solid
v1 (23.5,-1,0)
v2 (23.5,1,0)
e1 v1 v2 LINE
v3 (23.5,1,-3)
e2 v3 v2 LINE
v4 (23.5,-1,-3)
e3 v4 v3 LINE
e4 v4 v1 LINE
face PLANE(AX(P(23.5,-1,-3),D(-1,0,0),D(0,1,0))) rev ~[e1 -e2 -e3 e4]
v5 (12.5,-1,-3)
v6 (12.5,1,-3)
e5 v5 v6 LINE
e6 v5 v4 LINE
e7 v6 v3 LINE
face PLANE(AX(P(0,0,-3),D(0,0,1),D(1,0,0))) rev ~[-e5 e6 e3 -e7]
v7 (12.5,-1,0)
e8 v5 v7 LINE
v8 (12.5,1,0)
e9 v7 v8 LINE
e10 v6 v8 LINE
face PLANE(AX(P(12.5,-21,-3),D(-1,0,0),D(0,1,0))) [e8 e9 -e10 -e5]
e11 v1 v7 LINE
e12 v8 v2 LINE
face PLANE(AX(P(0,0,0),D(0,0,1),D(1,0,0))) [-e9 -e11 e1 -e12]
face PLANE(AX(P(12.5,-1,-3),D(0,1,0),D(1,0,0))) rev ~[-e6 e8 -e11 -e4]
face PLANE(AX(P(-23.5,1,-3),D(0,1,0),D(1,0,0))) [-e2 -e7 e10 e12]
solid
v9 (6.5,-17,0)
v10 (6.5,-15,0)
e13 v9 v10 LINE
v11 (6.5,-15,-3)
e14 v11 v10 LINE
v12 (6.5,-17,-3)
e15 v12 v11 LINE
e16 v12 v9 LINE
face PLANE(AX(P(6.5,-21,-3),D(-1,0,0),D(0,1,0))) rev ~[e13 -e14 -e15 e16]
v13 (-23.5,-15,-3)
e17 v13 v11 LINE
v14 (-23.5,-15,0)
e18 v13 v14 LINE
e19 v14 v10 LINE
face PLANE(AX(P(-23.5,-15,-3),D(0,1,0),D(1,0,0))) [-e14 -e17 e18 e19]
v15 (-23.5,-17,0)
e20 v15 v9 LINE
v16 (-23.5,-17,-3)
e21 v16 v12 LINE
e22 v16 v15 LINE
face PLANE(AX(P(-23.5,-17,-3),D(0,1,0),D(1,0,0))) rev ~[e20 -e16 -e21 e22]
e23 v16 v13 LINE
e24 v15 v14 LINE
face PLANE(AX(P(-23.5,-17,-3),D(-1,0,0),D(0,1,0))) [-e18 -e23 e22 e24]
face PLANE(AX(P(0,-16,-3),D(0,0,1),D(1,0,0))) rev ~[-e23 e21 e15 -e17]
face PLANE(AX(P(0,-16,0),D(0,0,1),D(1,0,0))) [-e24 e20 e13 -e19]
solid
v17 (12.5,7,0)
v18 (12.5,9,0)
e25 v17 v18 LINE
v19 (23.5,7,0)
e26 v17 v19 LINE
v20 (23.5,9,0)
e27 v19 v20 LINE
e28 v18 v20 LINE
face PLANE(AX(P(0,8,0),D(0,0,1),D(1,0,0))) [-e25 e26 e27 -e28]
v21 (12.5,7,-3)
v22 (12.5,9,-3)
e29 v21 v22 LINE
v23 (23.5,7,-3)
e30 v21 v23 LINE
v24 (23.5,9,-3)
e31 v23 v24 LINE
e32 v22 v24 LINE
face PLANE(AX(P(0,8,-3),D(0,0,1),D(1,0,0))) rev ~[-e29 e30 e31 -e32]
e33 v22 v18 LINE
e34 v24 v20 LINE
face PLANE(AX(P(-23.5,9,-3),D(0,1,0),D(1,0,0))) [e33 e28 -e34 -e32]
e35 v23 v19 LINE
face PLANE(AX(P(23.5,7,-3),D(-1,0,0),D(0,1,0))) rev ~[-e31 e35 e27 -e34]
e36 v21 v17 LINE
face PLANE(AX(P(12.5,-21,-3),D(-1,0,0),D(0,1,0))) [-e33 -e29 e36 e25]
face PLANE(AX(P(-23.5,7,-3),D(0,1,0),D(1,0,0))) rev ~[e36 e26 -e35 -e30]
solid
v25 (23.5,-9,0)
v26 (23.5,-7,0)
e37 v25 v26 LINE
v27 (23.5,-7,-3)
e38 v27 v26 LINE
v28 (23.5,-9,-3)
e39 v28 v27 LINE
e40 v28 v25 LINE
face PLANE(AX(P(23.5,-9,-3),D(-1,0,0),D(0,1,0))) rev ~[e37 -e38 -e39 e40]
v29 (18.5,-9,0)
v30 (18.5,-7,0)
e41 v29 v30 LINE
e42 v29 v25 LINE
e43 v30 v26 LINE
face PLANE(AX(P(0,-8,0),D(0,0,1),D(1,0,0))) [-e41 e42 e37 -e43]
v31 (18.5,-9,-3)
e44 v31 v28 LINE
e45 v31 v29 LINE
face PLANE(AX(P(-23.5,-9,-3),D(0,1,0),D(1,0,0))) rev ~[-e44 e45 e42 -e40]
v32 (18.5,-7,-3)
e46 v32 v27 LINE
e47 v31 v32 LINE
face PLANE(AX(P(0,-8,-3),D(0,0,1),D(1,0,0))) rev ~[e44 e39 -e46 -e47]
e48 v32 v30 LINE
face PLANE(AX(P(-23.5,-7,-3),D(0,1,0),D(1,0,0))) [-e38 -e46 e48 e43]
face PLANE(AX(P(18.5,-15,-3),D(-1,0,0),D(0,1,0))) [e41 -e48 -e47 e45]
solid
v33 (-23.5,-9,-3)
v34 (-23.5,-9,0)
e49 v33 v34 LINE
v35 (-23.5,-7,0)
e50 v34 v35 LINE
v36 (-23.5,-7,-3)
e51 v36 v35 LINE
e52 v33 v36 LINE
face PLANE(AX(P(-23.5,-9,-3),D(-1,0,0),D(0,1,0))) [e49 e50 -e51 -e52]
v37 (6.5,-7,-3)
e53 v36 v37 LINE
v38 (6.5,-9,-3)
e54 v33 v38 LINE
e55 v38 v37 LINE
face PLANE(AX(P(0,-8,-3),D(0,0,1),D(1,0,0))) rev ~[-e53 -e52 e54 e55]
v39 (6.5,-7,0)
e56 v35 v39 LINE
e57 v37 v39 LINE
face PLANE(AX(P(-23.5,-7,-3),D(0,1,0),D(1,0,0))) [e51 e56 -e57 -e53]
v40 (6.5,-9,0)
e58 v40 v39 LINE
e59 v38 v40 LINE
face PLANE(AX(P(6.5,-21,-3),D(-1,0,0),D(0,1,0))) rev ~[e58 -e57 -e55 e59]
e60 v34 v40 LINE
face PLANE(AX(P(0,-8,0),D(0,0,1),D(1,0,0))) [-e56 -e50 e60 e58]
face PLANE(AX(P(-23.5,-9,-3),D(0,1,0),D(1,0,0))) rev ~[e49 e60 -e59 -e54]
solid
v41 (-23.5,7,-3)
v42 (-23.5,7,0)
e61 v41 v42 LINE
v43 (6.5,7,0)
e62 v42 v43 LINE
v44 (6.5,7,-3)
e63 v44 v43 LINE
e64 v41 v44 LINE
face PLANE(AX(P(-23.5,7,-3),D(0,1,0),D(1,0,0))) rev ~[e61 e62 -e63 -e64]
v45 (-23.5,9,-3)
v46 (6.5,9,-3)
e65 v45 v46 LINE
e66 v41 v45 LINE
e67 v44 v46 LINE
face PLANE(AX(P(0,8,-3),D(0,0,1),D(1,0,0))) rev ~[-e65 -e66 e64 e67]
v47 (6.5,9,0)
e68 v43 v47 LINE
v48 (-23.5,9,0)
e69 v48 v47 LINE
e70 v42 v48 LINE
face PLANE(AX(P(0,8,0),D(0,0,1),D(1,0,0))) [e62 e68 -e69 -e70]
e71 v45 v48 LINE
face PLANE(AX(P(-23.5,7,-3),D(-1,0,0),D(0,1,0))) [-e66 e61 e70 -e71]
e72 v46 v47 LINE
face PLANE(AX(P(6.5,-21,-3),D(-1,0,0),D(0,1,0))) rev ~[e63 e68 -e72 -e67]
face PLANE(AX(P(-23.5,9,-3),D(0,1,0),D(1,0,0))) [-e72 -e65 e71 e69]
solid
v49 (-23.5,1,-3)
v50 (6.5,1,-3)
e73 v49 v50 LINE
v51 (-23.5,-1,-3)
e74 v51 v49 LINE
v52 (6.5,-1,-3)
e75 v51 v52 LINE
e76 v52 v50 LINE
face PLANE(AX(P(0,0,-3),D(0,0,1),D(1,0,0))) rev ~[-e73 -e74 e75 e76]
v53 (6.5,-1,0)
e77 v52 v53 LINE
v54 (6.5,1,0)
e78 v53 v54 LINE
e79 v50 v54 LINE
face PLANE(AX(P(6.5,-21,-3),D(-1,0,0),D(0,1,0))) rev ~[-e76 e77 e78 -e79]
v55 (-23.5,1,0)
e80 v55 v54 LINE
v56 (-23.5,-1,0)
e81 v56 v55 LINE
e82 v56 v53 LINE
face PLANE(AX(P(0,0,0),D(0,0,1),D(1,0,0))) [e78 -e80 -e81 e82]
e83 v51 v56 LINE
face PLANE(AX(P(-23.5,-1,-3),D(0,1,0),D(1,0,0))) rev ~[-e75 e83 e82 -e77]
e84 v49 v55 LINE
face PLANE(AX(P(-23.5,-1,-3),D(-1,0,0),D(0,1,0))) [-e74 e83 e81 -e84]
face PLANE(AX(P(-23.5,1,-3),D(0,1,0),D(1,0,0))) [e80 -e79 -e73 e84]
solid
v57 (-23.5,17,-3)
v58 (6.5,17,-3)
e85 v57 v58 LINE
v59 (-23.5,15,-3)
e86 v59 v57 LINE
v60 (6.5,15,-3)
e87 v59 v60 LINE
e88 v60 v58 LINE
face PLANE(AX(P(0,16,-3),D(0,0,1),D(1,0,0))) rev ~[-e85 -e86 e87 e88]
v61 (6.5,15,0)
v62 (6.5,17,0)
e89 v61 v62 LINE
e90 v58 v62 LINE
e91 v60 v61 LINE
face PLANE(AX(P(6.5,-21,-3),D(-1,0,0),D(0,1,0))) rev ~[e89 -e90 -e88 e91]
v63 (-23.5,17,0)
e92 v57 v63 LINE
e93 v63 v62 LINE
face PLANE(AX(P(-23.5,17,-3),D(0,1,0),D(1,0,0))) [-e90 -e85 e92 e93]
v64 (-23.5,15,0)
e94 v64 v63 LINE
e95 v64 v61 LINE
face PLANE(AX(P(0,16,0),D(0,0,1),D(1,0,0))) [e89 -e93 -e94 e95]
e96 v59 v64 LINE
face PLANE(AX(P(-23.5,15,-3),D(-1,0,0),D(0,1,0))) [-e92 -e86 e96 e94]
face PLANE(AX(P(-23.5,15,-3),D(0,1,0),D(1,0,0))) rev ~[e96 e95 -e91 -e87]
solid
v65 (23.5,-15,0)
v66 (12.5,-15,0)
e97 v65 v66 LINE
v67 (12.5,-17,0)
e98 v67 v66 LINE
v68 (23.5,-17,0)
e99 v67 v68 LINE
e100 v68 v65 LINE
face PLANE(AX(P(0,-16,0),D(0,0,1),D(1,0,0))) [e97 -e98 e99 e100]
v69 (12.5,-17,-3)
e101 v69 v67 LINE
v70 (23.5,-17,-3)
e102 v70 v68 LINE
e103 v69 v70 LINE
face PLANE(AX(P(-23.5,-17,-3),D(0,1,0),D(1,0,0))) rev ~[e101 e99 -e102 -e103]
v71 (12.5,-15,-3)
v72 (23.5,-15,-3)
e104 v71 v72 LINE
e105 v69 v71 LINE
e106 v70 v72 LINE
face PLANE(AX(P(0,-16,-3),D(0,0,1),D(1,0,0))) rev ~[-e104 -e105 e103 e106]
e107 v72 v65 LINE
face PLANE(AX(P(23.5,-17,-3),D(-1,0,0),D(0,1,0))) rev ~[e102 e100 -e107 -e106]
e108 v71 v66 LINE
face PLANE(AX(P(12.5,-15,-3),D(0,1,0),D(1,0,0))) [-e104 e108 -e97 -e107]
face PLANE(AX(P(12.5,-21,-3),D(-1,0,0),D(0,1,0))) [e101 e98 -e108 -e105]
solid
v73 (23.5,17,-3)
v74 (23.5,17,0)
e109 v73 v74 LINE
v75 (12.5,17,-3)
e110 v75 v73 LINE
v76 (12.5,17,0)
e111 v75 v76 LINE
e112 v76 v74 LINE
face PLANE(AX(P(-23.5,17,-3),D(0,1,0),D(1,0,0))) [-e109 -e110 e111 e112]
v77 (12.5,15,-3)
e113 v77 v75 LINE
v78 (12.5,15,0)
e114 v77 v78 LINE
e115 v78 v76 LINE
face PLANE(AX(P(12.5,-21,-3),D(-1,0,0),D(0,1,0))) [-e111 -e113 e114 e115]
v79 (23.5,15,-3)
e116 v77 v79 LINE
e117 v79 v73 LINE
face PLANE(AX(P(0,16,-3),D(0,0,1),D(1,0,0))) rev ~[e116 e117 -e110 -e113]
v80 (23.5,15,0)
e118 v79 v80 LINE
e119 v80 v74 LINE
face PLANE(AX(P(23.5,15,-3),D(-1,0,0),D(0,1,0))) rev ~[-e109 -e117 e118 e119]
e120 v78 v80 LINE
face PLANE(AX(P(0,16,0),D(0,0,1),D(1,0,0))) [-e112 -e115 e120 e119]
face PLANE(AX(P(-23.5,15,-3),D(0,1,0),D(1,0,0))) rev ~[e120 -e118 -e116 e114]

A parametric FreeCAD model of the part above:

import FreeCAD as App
import Part
import Sketcher
Q = App.Units.Quantity

doc = App.newDocument("Part")
params = doc.addObject("Spreadsheet::Sheet", "Params")
for row, (alias, value) in enumerate([
    ("sketch1_width", "6 mm"),
    ("sketch1_height", "14 mm"),
    ("pad1_length", "3 mm"),
    ("sketch2_width", "6 mm"),
    ("sketch2_height", "42 mm"),
    ("pad2_length", "3 mm"),
    ("sketch3_width", "47 mm"),
    ("sketch3_height", "2 mm"),
    ("pad3_length", "3 mm"),
    ("sketch4_width", "47 mm"),
    ("sketch4_height", "2 mm"),
    ("pad4_length", "3 mm"),
    ("sketch5_width", "47 mm"),
    ("sketch5_height", "2 mm"),
    ("pad5_length", "3 mm"),
    ("sketch6_width", "47 mm"),
    ("sketch6_height", "2 mm"),
    ("pad6_length", "3 mm"),
    ("sketch7_width", "47 mm"),
    ("sketch7_height", "2 mm"),
    ("pad7_length", "3 mm"),
], start=1):
    params.set(f"A{row}", alias)
    params.set(f"B{row}", "=" + value)
    params.setAlias(f"B{row}", alias)

body = doc.addObject("PartDesign::Body", "Body")

# Sketch on XY plane
sketch1 = body.newObject("Sketcher::SketchObject", "Sketch")
sketch1.AttachmentSupport = (doc.getObject("XY_Plane"), [""])
sketch1.MapMode = "FlatFace"
sketch1.AttachmentOffset = App.Placement(App.Vector(0, 0, -3), App.Rotation())
sketch1.addGeometry([
    Part.LineSegment(App.Vector(12, -1, 0), App.Vector(12, -15, 0)),
    Part.LineSegment(App.Vector(12, -15, 0), App.Vector(18, -15, 0)),
    Part.LineSegment(App.Vector(18, -15, 0), App.Vector(18, -1, 0)),
    Part.LineSegment(App.Vector(18, -1, 0), App.Vector(12, -1, 0)),
], False)
sketch1.addConstraint([
    Sketcher.Constraint("Coincident", 0, 2, 1, 1),
    Sketcher.Constraint("Coincident", 1, 2, 2, 1),
    Sketcher.Constraint("Coincident", 2, 2, 3, 1),
    Sketcher.Constraint("Coincident", 3, 2, 0, 1),
    Sketcher.Constraint("Vertical", 0),
    Sketcher.Constraint("Horizontal", 1),
    Sketcher.Constraint("Vertical", 2),
    Sketcher.Constraint("Horizontal", 3),
    Sketcher.Constraint("DistanceX", 1, 1, 1, 2, Q("6 mm")),
    Sketcher.Constraint("DistanceY", 0, 2, 0, 1, Q("14 mm")),
    Sketcher.Constraint("DistanceY", 0, 2, -1, 1, Q("15 mm")),
    Sketcher.Constraint("DistanceX", -1, 1, 0, 2, Q("12.5 mm")),
])
sketch1.setExpression("Constraints[8]", "Params.sketch1_width")
sketch1.setExpression("Constraints[9]", "Params.sketch1_height")
pad1 = body.newObject("PartDesign::Pad", "Pad")
pad1.Profile = sketch1
pad1.setExpression("Length", "Params.pad1_length")
body2 = doc.addObject("PartDesign::Body", "Body001")

# Sketch on XY plane
sketch2 = body2.newObject("Sketcher::SketchObject", "Sketch001")
sketch2.AttachmentSupport = (doc.getObject("XY_Plane001"), [""])
sketch2.MapMode = "FlatFace"
sketch2.AttachmentOffset = App.Placement(App.Vector(0, 0, -3), App.Rotation())
sketch2.addGeometry([
    Part.LineSegment(App.Vector(6, 21, 0), App.Vector(6, -21, 0)),
    Part.LineSegment(App.Vector(6, -21, 0), App.Vector(12, -21, 0)),
    Part.LineSegment(App.Vector(12, -21, 0), App.Vector(12, 21, 0)),
    Part.LineSegment(App.Vector(12, 21, 0), App.Vector(6, 21, 0)),
], False)
sketch2.addConstraint([
    Sketcher.Constraint("Coincident", 0, 2, 1, 1),
    Sketcher.Constraint("Coincident", 1, 2, 2, 1),
    Sketcher.Constraint("Coincident", 2, 2, 3, 1),
    Sketcher.Constraint("Coincident", 3, 2, 0, 1),
    Sketcher.Constraint("Vertical", 0),
    Sketcher.Constraint("Horizontal", 1),
    Sketcher.Constraint("Vertical", 2),
    Sketcher.Constraint("Horizontal", 3),
    Sketcher.Constraint("DistanceX", 1, 1, 1, 2, Q("6 mm")),
    Sketcher.Constraint("DistanceY", 0, 2, 0, 1, Q("42 mm")),
    Sketcher.Constraint("DistanceY", 0, 2, -1, 1, Q("21 mm")),
    Sketcher.Constraint("DistanceX", -1, 1, 0, 2, Q("6.5 mm")),
])
sketch2.setExpression("Constraints[8]", "Params.sketch2_width")
sketch2.setExpression("Constraints[9]", "Params.sketch2_height")
pad2 = body2.newObject("PartDesign::Pad", "Pad001")
pad2.Profile = sketch2
pad2.setExpression("Length", "Params.pad2_length")
doc.recompute()

boolean = body2.newObject("PartDesign::Boolean", "Boolean")
boolean.Type = "Fuse"
boolean.addObjects([body])
body3 = doc.addObject("PartDesign::Body", "Body002")

# Sketch on XY plane
sketch3 = body3.newObject("Sketcher::SketchObject", "Sketch002")
sketch3.AttachmentSupport = (doc.getObject("XY_Plane002"), [""])
sketch3.MapMode = "FlatFace"
sketch3.AttachmentOffset = App.Placement(App.Vector(0, 0, -3), App.Rotation())
sketch3.addGeometry([
    Part.LineSegment(App.Vector(-23.5, 1, 0), App.Vector(-23.5, -1, 0)),
    Part.LineSegment(App.Vector(-23.5, -1, 0), App.Vector(23.5, -1, 0)),
    Part.LineSegment(App.Vector(23.5, -1, 0), App.Vector(23.5, 1, 0)),
    Part.LineSegment(App.Vector(23.5, 1, 0), App.Vector(-23.5, 1, 0)),
], False)
sketch3.addConstraint([
    Sketcher.Constraint("Coincident", 0, 2, 1, 1),
    Sketcher.Constraint("Coincident", 1, 2, 2, 1),
    Sketcher.Constraint("Coincident", 2, 2, 3, 1),
    Sketcher.Constraint("Coincident", 3, 2, 0, 1),
    Sketcher.Constraint("Vertical", 0),
    Sketcher.Constraint("Horizontal", 1),
    Sketcher.Constraint("Vertical", 2),
    Sketcher.Constraint("Horizontal", 3),
    Sketcher.Constraint("Symmetric", 0, 2, 2, 2, -1, 1),
    Sketcher.Constraint("DistanceX", 1, 1, 1, 2, Q("47 mm")),
    Sketcher.Constraint("DistanceY", 0, 2, 0, 1, Q("2 mm")),
])
sketch3.setExpression("Constraints[9]", "Params.sketch3_width")
sketch3.setExpression("Constraints[10]", "Params.sketch3_height")
pad3 = body3.newObject("PartDesign::Pad", "Pad002")
pad3.Profile = sketch3
pad3.setExpression("Length", "Params.pad3_length")
body4 = doc.addObject("PartDesign::Body", "Body003")

# Sketch on XY plane
sketch4 = body4.newObject("Sketcher::SketchObject", "Sketch003")
sketch4.AttachmentSupport = (doc.getObject("XY_Plane003"), [""])
sketch4.MapMode = "FlatFace"
sketch4.AttachmentOffset = App.Placement(App.Vector(0, 0, -3), App.Rotation())
sketch4.addGeometry([
    Part.LineSegment(App.Vector(-23.5, -7, 0), App.Vector(-23.5, -9, 0)),
    Part.LineSegment(App.Vector(-23.5, -9, 0), App.Vector(23.5, -9, 0)),
    Part.LineSegment(App.Vector(23.5, -9, 0), App.Vector(23.5, -7, 0)),
    Part.LineSegment(App.Vector(23.5, -7, 0), App.Vector(-23.5, -7, 0)),
], False)
sketch4.addConstraint([
    Sketcher.Constraint("Coincident", 0, 2, 1, 1),
    Sketcher.Constraint("Coincident", 1, 2, 2, 1),
    Sketcher.Constraint("Coincident", 2, 2, 3, 1),
    Sketcher.Constraint("Coincident", 3, 2, 0, 1),
    Sketcher.Constraint("Vertical", 0),
    Sketcher.Constraint("Horizontal", 1),
    Sketcher.Constraint("Vertical", 2),
    Sketcher.Constraint("Horizontal", 3),
    Sketcher.Constraint("DistanceX", 1, 1, 1, 2, Q("47 mm")),
    Sketcher.Constraint("DistanceY", 0, 2, 0, 1, Q("2 mm")),
    Sketcher.Constraint("DistanceY", 0, 2, -1, 1, Q("9 mm")),
    Sketcher.Constraint("DistanceX", 0, 2, -1, 1, Q("23.5 mm")),
])
sketch4.setExpression("Constraints[8]", "Params.sketch4_width")
sketch4.setExpression("Constraints[9]", "Params.sketch4_height")
pad4 = body4.newObject("PartDesign::Pad", "Pad003")
pad4.Profile = sketch4
pad4.setExpression("Length", "Params.pad4_length")
body5 = doc.addObject("PartDesign::Body", "Body004")

# Sketch on XY plane
sketch5 = body5.newObject("Sketcher::SketchObject", "Sketch004")
sketch5.AttachmentSupport = (doc.getObject("XY_Plane004"), [""])
sketch5.MapMode = "FlatFace"
sketch5.AttachmentOffset = App.Placement(App.Vector(0, 0, -3), App.Rotation())
sketch5.addGeometry([
    Part.LineSegment(App.Vector(-23.5, -15, 0), App.Vector(-23.5, -17, 0)),
    Part.LineSegment(App.Vector(-23.5, -17, 0), App.Vector(23.5, -17, 0)),
    Part.LineSegment(App.Vector(23.5, -17, 0), App.Vector(23.5, -15, 0)),
    Part.LineSegment(App.Vector(23.5, -15, 0), App.Vector(-23.5, -15, 0)),
], False)
sketch5.addConstraint([
    Sketcher.Constraint("Coincident", 0, 2, 1, 1),
    Sketcher.Constraint("Coincident", 1, 2, 2, 1),
    Sketcher.Constraint("Coincident", 2, 2, 3, 1),
    Sketcher.Constraint("Coincident", 3, 2, 0, 1),
    Sketcher.Constraint("Vertical", 0),
    Sketcher.Constraint("Horizontal", 1),
    Sketcher.Constraint("Vertical", 2),
    Sketcher.Constraint("Horizontal", 3),
    Sketcher.Constraint("DistanceX", 1, 1, 1, 2, Q("47 mm")),
    Sketcher.Constraint("DistanceY", 0, 2, 0, 1, Q("2 mm")),
    Sketcher.Constraint("DistanceY", 0, 2, -1, 1, Q("17 mm")),
    Sketcher.Constraint("DistanceX", 0, 2, -1, 1, Q("23.5 mm")),
])
sketch5.setExpression("Constraints[8]", "Params.sketch5_width")
sketch5.setExpression("Constraints[9]", "Params.sketch5_height")
pad5 = body5.newObject("PartDesign::Pad", "Pad004")
pad5.Profile = sketch5
pad5.setExpression("Length", "Params.pad5_length")
body6 = doc.addObject("PartDesign::Body", "Body005")

# Sketch on XY plane
sketch6 = body6.newObject("Sketcher::SketchObject", "Sketch005")
sketch6.AttachmentSupport = (doc.getObject("XY_Plane005"), [""])
sketch6.MapMode = "FlatFace"
sketch6.AttachmentOffset = App.Placement(App.Vector(0, 0, -3), App.Rotation())
sketch6.addGeometry([
    Part.LineSegment(App.Vector(-23.5, 9, 0), App.Vector(-23.5, 7, 0)),
    Part.LineSegment(App.Vector(-23.5, 7, 0), App.Vector(23.5, 7, 0)),
    Part.LineSegment(App.Vector(23.5, 7, 0), App.Vector(23.5, 9, 0)),
    Part.LineSegment(App.Vector(23.5, 9, 0), App.Vector(-23.5, 9, 0)),
], False)
sketch6.addConstraint([
    Sketcher.Constraint("Coincident", 0, 2, 1, 1),
    Sketcher.Constraint("Coincident", 1, 2, 2, 1),
    Sketcher.Constraint("Coincident", 2, 2, 3, 1),
    Sketcher.Constraint("Coincident", 3, 2, 0, 1),
    Sketcher.Constraint("Vertical", 0),
    Sketcher.Constraint("Horizontal", 1),
    Sketcher.Constraint("Vertical", 2),
    Sketcher.Constraint("Horizontal", 3),
    Sketcher.Constraint("DistanceX", 1, 1, 1, 2, Q("47 mm")),
    Sketcher.Constraint("DistanceY", 0, 2, 0, 1, Q("2 mm")),
    Sketcher.Constraint("DistanceY", -1, 1, 0, 2, Q("7 mm")),
    Sketcher.Constraint("DistanceX", 0, 2, -1, 1, Q("23.5 mm")),
])
sketch6.setExpression("Constraints[8]", "Params.sketch6_width")
sketch6.setExpression("Constraints[9]", "Params.sketch6_height")
pad6 = body6.newObject("PartDesign::Pad", "Pad005")
pad6.Profile = sketch6
pad6.setExpression("Length", "Params.pad6_length")
body7 = doc.addObject("PartDesign::Body", "Body006")
body7.AllowCompound = True

# Sketch on XY plane
sketch7 = body7.newObject("Sketcher::SketchObject", "Sketch006")
sketch7.AttachmentSupport = (doc.getObject("XY_Plane006"), [""])
sketch7.MapMode = "FlatFace"
sketch7.AttachmentOffset = App.Placement(App.Vector(0, 0, -3), App.Rotation())
sketch7.addGeometry([
    Part.LineSegment(App.Vector(-23.5, 17, 0), App.Vector(-23.5, 15, 0)),
    Part.LineSegment(App.Vector(-23.5, 15, 0), App.Vector(23.5, 15, 0)),
    Part.LineSegment(App.Vector(23.5, 15, 0), App.Vector(23.5, 17, 0)),
    Part.LineSegment(App.Vector(23.5, 17, 0), App.Vector(-23.5, 17, 0)),
], False)
sketch7.addConstraint([
    Sketcher.Constraint("Coincident", 0, 2, 1, 1),
    Sketcher.Constraint("Coincident", 1, 2, 2, 1),
    Sketcher.Constraint("Coincident", 2, 2, 3, 1),
    Sketcher.Constraint("Coincident", 3, 2, 0, 1),
    Sketcher.Constraint("Vertical", 0),
    Sketcher.Constraint("Horizontal", 1),
    Sketcher.Constraint("Vertical", 2),
    Sketcher.Constraint("Horizontal", 3),
    Sketcher.Constraint("DistanceX", 1, 1, 1, 2, Q("47 mm")),
    Sketcher.Constraint("DistanceY", 0, 2, 0, 1, Q("2 mm")),
    Sketcher.Constraint("DistanceY", -1, 1, 0, 2, Q("15 mm")),
    Sketcher.Constraint("DistanceX", 0, 2, -1, 1, Q("23.5 mm")),
])
sketch7.setExpression("Constraints[8]", "Params.sketch7_width")
sketch7.setExpression("Constraints[9]", "Params.sketch7_height")
pad7 = body7.newObject("PartDesign::Pad", "Pad006")
pad7.Profile = sketch7
pad7.setExpression("Length", "Params.pad7_length")
doc.recompute()

boolean2 = body7.newObject("PartDesign::Boolean", "Boolean001")
boolean2.Type = "Fuse"
boolean2.addObjects([body3])
doc.recompute()

boolean3 = body7.newObject("PartDesign::Boolean", "Boolean002")
boolean3.Type = "Fuse"
boolean3.addObjects([body4])
doc.recompute()

boolean4 = body7.newObject("PartDesign::Boolean", "Boolean003")
boolean4.Type = "Fuse"
boolean4.addObjects([body5])
doc.recompute()

boolean5 = body7.newObject("PartDesign::Boolean", "Boolean004")
boolean5.Type = "Fuse"
boolean5.addObjects([body6])
doc.recompute()

boolean6 = body7.newObject("PartDesign::Boolean", "Boolean005")
boolean6.Type = "Cut"
boolean6.addObjects([body2])

doc.recompute()
